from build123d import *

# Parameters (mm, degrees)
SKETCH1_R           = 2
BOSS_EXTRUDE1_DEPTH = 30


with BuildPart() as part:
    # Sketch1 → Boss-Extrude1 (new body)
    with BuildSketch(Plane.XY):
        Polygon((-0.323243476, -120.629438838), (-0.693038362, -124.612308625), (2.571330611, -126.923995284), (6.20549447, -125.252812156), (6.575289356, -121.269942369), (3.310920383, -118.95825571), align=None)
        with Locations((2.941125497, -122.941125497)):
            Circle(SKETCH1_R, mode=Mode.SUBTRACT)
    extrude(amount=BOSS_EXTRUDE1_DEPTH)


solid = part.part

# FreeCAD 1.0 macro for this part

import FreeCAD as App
import Part
import Sketcher
from FreeCAD import Vector

doc = App.newDocument("Part")
body = doc.addObject("PartDesign::Body", "Body")

sketch1 = body.newObject("Sketcher::SketchObject", "Sketch")
sketch1.AttachmentSupport = (doc.getObject("XY_Plane"), [""])
sketch1.MapMode = "FlatFace"
sketch1.addGeometry([
    Part.LineSegment(Vector(-0.323243, -120.629439, 0), Vector(-0.693038, -124.612309, 0)),
    Part.LineSegment(Vector(-0.693038, -124.612309, 0), Vector(2.571331, -126.923995, 0)),
    Part.LineSegment(Vector(2.571331, -126.923995, 0), Vector(6.205494, -125.252812, 0)),
    Part.LineSegment(Vector(6.205494, -125.252812, 0), Vector(6.575289, -121.269942, 0)),
    Part.LineSegment(Vector(6.575289, -121.269942, 0), Vector(3.31092, -118.958256, 0)),
    Part.LineSegment(Vector(3.31092, -118.958256, 0), Vector(-0.323243, -120.629439, 0)),
    Part.Circle(Vector(2.941125, -122.941125, 0), Vector(0, 0, 1), 2),
], False)
sketch1.addConstraint([
    Sketcher.Constraint("Coincident", 0, 2, 1, 1),
    Sketcher.Constraint("Coincident", 1, 2, 2, 1),
    Sketcher.Constraint("Coincident", 2, 2, 3, 1),
    Sketcher.Constraint("Coincident", 3, 2, 4, 1),
    Sketcher.Constraint("Coincident", 4, 2, 5, 1),
    Sketcher.Constraint("Coincident", 5, 2, 0, 1),
    Sketcher.Constraint("Parallel", 0, 3),
    Sketcher.Constraint("Parallel", 1, 4),
    Sketcher.Constraint("Parallel", 2, 5),
    Sketcher.Constraint("Equal", 0, 1),
    Sketcher.Constraint("Equal", 1, 2),
    Sketcher.Constraint("Equal", 2, 3),
    Sketcher.Constraint("Diameter", 6, 4.0),
    Sketcher.Constraint("Distance", 0, 4.0),
    Sketcher.Constraint("DistanceX", 0, 2, -1, 1, 0.693038),
    Sketcher.Constraint("DistanceY", 0, 2, -1, 1, 124.612309),
    Sketcher.Constraint("DistanceX", -1, 1, 1, 2, 2.571331),
    Sketcher.Constraint("DistanceX", -1, 1, 3, 2, 6.575289),
    Sketcher.Constraint("DistanceY", 5, 2, -1, 1, 120.629439),
    Sketcher.Constraint("DistanceY", 1, 2, 6, 3, 3.98287),
    Sketcher.Constraint("DistanceX", 6, 3, 2, 2, 3.264369),
])
pad1 = body.newObject("PartDesign::Pad", "Pad")
pad1.Profile = sketch1
pad1.Length = 30

doc.recompute()
